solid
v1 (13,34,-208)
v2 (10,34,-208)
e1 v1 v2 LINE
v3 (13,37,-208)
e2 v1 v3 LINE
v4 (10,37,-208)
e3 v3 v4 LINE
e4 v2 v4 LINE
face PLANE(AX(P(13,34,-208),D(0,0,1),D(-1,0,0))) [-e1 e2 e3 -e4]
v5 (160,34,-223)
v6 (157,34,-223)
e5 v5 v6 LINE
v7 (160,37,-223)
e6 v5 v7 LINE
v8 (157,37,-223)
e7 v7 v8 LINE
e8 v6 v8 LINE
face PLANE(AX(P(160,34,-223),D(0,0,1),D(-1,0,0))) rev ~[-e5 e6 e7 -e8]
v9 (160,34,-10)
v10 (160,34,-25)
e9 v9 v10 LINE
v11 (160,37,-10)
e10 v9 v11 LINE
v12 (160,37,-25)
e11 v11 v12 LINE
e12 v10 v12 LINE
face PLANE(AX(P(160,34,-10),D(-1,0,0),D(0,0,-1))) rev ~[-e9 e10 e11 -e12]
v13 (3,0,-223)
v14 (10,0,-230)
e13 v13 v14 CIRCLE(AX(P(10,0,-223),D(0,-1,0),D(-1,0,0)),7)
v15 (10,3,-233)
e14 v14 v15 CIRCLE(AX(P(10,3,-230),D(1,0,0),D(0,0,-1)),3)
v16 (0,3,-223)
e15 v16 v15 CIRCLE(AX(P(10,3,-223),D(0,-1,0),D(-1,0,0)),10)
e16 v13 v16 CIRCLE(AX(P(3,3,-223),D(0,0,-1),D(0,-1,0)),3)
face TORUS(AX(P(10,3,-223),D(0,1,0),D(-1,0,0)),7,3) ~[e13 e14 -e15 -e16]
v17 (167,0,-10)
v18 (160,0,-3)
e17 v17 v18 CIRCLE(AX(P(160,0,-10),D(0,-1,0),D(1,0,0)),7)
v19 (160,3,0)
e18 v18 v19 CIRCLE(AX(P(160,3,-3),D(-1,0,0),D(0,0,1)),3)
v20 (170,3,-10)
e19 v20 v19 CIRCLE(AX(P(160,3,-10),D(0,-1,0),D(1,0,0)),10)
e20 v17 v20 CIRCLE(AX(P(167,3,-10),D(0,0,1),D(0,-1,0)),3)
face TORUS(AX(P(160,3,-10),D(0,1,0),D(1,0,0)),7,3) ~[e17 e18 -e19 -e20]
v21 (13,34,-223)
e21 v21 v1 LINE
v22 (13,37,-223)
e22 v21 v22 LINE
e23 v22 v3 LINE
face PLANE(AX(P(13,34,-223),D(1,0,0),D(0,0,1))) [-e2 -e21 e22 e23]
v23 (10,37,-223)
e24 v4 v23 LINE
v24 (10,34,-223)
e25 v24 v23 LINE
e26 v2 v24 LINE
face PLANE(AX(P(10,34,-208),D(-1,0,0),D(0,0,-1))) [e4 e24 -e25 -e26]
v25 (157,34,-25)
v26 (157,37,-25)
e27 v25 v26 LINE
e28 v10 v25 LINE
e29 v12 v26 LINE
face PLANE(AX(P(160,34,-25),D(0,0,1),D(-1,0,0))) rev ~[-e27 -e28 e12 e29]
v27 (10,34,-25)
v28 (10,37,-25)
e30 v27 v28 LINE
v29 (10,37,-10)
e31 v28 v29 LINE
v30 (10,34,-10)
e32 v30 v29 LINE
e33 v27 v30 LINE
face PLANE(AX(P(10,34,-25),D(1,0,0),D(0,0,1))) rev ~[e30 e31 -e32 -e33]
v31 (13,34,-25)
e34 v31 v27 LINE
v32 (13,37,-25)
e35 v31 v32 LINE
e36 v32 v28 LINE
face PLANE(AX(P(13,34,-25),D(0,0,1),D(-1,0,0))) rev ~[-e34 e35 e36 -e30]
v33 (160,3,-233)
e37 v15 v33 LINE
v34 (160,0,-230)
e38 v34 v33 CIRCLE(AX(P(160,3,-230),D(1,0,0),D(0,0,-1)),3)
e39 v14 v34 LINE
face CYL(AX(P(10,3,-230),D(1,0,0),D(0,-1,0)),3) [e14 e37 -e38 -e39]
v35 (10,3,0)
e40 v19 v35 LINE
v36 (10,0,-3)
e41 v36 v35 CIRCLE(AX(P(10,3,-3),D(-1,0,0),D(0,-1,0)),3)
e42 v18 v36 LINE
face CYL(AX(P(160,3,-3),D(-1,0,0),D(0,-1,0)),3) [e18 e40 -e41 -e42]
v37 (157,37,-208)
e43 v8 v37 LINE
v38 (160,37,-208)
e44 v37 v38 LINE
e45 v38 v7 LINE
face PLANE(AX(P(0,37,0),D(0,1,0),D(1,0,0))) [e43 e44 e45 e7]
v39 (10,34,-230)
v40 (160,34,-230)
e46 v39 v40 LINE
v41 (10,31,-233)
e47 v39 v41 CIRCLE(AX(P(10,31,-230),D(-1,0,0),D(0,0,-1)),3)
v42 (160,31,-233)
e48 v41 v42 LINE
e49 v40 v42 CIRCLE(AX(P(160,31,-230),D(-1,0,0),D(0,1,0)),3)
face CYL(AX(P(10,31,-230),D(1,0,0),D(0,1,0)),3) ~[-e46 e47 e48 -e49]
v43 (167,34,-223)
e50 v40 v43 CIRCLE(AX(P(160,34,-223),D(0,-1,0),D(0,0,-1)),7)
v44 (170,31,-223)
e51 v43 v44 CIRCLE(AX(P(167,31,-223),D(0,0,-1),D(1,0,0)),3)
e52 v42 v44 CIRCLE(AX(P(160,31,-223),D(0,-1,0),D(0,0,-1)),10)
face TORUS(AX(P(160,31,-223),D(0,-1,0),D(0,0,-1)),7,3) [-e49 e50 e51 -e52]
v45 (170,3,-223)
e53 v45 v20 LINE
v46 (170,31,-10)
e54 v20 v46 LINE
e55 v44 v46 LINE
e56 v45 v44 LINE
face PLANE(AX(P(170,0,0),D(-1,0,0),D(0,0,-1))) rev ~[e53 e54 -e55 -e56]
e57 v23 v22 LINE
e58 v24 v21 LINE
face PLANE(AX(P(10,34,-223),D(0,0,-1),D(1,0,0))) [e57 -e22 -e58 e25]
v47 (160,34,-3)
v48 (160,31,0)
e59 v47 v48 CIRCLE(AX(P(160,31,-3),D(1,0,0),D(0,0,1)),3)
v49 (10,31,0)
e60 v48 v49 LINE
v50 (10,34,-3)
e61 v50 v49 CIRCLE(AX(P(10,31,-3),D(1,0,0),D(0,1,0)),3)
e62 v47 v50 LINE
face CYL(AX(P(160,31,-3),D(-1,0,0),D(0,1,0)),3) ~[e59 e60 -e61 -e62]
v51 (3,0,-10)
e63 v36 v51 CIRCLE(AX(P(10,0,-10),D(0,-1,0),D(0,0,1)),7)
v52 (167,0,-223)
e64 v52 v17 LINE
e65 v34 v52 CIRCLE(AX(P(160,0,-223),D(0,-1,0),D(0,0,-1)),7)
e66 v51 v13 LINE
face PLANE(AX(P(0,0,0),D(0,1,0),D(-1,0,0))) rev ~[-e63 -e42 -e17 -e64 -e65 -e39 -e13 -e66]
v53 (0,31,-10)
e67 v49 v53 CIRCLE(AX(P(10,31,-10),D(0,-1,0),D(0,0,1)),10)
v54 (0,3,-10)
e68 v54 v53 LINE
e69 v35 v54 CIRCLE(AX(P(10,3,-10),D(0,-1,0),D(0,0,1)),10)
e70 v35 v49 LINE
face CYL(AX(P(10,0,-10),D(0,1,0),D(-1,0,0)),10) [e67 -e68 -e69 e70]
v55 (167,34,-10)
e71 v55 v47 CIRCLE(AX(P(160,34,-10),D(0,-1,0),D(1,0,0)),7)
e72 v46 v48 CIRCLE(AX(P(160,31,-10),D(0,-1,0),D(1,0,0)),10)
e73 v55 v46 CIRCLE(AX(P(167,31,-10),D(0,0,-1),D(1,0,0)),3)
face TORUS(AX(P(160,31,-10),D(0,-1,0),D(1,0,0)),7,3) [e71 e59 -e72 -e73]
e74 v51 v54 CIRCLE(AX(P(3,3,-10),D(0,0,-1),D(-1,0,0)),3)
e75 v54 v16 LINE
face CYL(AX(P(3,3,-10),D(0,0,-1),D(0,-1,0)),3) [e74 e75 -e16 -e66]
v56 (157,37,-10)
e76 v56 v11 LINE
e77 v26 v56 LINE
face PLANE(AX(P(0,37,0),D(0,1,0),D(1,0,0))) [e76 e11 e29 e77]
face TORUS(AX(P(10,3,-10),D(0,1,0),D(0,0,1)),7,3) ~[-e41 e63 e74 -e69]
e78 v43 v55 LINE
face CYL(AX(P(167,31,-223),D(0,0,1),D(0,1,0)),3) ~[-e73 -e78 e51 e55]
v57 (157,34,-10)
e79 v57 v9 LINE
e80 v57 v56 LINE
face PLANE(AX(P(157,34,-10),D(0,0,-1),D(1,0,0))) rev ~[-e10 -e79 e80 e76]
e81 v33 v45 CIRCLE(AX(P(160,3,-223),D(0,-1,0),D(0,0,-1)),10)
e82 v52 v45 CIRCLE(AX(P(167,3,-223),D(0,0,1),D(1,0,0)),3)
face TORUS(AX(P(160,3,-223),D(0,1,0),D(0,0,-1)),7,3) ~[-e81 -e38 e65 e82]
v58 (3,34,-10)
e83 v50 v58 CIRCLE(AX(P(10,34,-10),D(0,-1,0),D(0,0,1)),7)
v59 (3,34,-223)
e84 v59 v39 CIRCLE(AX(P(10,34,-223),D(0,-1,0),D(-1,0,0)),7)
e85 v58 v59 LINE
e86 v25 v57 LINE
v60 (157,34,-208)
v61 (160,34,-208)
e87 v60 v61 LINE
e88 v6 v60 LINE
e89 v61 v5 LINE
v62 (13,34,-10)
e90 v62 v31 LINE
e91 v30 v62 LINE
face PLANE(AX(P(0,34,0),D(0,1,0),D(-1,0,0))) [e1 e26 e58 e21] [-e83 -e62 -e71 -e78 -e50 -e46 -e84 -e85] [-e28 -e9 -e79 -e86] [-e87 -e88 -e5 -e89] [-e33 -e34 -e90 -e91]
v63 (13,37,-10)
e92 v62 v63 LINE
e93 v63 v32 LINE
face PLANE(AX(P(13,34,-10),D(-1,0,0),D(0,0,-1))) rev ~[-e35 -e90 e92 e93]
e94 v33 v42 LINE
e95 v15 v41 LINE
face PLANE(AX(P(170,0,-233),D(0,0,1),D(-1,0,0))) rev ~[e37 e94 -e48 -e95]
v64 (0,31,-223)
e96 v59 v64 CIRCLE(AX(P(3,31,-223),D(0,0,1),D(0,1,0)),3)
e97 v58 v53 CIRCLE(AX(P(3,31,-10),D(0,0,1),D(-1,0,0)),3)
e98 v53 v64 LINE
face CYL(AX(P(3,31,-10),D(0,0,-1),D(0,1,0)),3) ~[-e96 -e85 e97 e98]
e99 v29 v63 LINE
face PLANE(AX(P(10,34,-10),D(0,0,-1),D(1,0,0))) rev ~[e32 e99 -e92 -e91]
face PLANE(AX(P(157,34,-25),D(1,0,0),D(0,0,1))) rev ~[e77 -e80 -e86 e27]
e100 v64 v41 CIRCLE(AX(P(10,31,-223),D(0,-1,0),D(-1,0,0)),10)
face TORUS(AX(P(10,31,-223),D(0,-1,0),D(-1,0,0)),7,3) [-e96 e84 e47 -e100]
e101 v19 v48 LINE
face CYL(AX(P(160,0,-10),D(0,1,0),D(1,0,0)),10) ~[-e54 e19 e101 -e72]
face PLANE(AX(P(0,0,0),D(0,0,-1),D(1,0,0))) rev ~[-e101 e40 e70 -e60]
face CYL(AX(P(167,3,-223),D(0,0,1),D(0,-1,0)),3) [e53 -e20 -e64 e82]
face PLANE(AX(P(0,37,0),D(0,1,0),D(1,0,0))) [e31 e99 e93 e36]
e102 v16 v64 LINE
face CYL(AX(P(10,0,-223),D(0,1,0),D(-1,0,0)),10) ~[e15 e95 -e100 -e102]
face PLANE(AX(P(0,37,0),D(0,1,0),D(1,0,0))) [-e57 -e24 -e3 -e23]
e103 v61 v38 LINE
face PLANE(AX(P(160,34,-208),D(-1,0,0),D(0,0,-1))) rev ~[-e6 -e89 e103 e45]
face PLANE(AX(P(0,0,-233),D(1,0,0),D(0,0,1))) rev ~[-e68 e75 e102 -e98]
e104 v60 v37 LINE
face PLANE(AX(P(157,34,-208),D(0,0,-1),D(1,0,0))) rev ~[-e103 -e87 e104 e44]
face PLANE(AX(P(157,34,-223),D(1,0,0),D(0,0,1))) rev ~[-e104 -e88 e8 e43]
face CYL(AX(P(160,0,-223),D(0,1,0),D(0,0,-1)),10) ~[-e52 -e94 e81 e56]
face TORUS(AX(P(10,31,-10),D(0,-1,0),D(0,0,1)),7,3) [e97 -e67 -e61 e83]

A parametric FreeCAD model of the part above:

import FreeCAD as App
import Part
import Sketcher
from FreeCAD import Vector
Q = App.Units.Quantity


def edges_at(feature, points):
    """Names of the edges that pass closest to the given points."""
    edges = feature.Shape.Edges
    near = lambda p: min(range(len(edges)), key=lambda i: edges[i].distToShape(Part.Vertex(*p))[0])
    return sorted({f"Edge{near(p) + 1}" for p in points})

doc = App.newDocument("Part")
body = doc.addObject("PartDesign::Body", "Body")

sketch1 = doc.addObject("Sketcher::SketchObject", "Sketch")
body.addObject(sketch1)
sketch1.AttachmentSupport = (doc.XZ_Plane, [""])
sketch1.MapMode = "FlatFace"
sketch1.addGeometry(Part.LineSegment(Vector(0, -233, 0), Vector(0, 0, 0)), False)
sketch1.addGeometry(Part.LineSegment(Vector(0, 0, 0), Vector(170, 0, 0)), False)
sketch1.addGeometry(Part.LineSegment(Vector(170, 0, 0), Vector(170, -233, 0)), False)
sketch1.addGeometry(Part.LineSegment(Vector(170, -233, 0), Vector(0, -233, 0)), False)
sketch1.addConstraint(Sketcher.Constraint("Coincident", 0, 2, 1, 1))
sketch1.addConstraint(Sketcher.Constraint("Coincident", 1, 2, 2, 1))
sketch1.addConstraint(Sketcher.Constraint("Coincident", 2, 2, 3, 1))
sketch1.addConstraint(Sketcher.Constraint("Coincident", 3, 2, 0, 1))
sketch1.addConstraint(Sketcher.Constraint("Vertical", 0))
sketch1.addConstraint(Sketcher.Constraint("Horizontal", 1))
sketch1.addConstraint(Sketcher.Constraint("Vertical", 2))
sketch1.addConstraint(Sketcher.Constraint("Horizontal", 3))
sketch1.addConstraint(Sketcher.Constraint("Coincident", 0, 2, -1, 1))
sketch1.addConstraint(Sketcher.Constraint("DistanceX", 1, 1, 1, 2, Q("170 mm")))
sketch1.addConstraint(Sketcher.Constraint("DistanceY", 0, 1, 0, 2, Q("233 mm")))
pad1 = doc.addObject("PartDesign::Pad", "Pad")
body.addObject(pad1)
pad1.Profile = sketch1
pad1.Length = 34
pad1.Reversed = True
doc.recompute()

fillet = doc.addObject("PartDesign::Fillet", "Fillet")
body.addObject(fillet)
fillet.Base = (pad1, edges_at(pad1, [
    (170, 17, 0),
    (0, 17, 0),
    (170, 17, -233),
    (0, 17, -233),
]))
fillet.Radius = 10
doc.recompute()

fillet2 = doc.addObject("PartDesign::Fillet", "Fillet001")
body.addObject(fillet2)
fillet2.Base = (fillet, edges_at(fillet, [
    (167.071, 34, -2.929),
    (170, 34, -116.5),
    (167.071, 34, -230.071),
    (85, 34, -233),
    (2.929, 34, -230.071),
    (0, 34, -116.5),
    (2.929, 34, -2.929),
    (85, 34, 0),
    (167.071, 0, -230.071),
    (85, 0, -233),
    (2.929, 0, -230.071),
    (0, 0, -116.5),
    (2.929, 0, -2.929),
    (85, 0, 0),
    (167.071, 0, -2.929),
    (170, 0, -116.5),
]))
fillet2.Radius = 3

sketch2 = doc.addObject("Sketcher::SketchObject", "Sketch001")
body.addObject(sketch2)
sketch2.AttachmentSupport = (doc.XZ_Plane, [""])
sketch2.MapMode = "FlatFace"
sketch2.AttachmentOffset = App.Placement(Vector(0, 0, -34), App.Rotation())
sketch2.addGeometry(Part.LineSegment(Vector(10, -25, 0), Vector(10, -10, 0)), False)
sketch2.addGeometry(Part.LineSegment(Vector(10, -10, 0), Vector(13, -10, 0)), False)
sketch2.addGeometry(Part.LineSegment(Vector(13, -10, 0), Vector(13, -25, 0)), False)
sketch2.addGeometry(Part.LineSegment(Vector(13, -25, 0), Vector(10, -25, 0)), False)
sketch2.addGeometry(Part.LineSegment(Vector(157, -25, 0), Vector(157, -10, 0)), False)
sketch2.addGeometry(Part.LineSegment(Vector(157, -10, 0), Vector(160, -10, 0)), False)
sketch2.addGeometry(Part.LineSegment(Vector(160, -10, 0), Vector(160, -25, 0)), False)
sketch2.addGeometry(Part.LineSegment(Vector(160, -25, 0), Vector(157, -25, 0)), False)
sketch2.addGeometry(Part.LineSegment(Vector(160, -208, 0), Vector(160, -223, 0)), False)
sketch2.addGeometry(Part.LineSegment(Vector(160, -223, 0), Vector(157, -223, 0)), False)
sketch2.addGeometry(Part.LineSegment(Vector(157, -223, 0), Vector(157, -208, 0)), False)
sketch2.addGeometry(Part.LineSegment(Vector(157, -208, 0), Vector(160, -208, 0)), False)
sketch2.addGeometry(Part.LineSegment(Vector(13, -223, 0), Vector(10, -223, 0)), False)
sketch2.addGeometry(Part.LineSegment(Vector(10, -223, 0), Vector(10, -208, 0)), False)
sketch2.addGeometry(Part.LineSegment(Vector(10, -208, 0), Vector(13, -208, 0)), False)
sketch2.addGeometry(Part.LineSegment(Vector(13, -208, 0), Vector(13, -223, 0)), False)
sketch2.addConstraint(Sketcher.Constraint("Coincident", 0, 2, 1, 1))
sketch2.addConstraint(Sketcher.Constraint("Coincident", 1, 2, 2, 1))
sketch2.addConstraint(Sketcher.Constraint("Coincident", 2, 2, 3, 1))
sketch2.addConstraint(Sketcher.Constraint("Coincident", 3, 2, 0, 1))
sketch2.addConstraint(Sketcher.Constraint("Coincident", 4, 2, 5, 1))
sketch2.addConstraint(Sketcher.Constraint("Coincident", 5, 2, 6, 1))
sketch2.addConstraint(Sketcher.Constraint("Coincident", 6, 2, 7, 1))
sketch2.addConstraint(Sketcher.Constraint("Coincident", 7, 2, 4, 1))
sketch2.addConstraint(Sketcher.Constraint("Coincident", 8, 2, 9, 1))
sketch2.addConstraint(Sketcher.Constraint("Coincident", 9, 2, 10, 1))
sketch2.addConstraint(Sketcher.Constraint("Coincident", 10, 2, 11, 1))
sketch2.addConstraint(Sketcher.Constraint("Coincident", 11, 2, 8, 1))
sketch2.addConstraint(Sketcher.Constraint("Coincident", 12, 2, 13, 1))
sketch2.addConstraint(Sketcher.Constraint("Coincident", 13, 2, 14, 1))
sketch2.addConstraint(Sketcher.Constraint("Coincident", 14, 2, 15, 1))
sketch2.addConstraint(Sketcher.Constraint("Coincident", 15, 2, 12, 1))
sketch2.addConstraint(Sketcher.Constraint("Vertical", 0))
sketch2.addConstraint(Sketcher.Constraint("Horizontal", 1))
sketch2.addConstraint(Sketcher.Constraint("Vertical", 2))
sketch2.addConstraint(Sketcher.Constraint("Horizontal", 3))
sketch2.addConstraint(Sketcher.Constraint("Vertical", 4))
sketch2.addConstraint(Sketcher.Constraint("Horizontal", 5))
sketch2.addConstraint(Sketcher.Constraint("Vertical", 6))
sketch2.addConstraint(Sketcher.Constraint("Horizontal", 7))
sketch2.addConstraint(Sketcher.Constraint("Vertical", 8))
sketch2.addConstraint(Sketcher.Constraint("Horizontal", 9))
sketch2.addConstraint(Sketcher.Constraint("Vertical", 10))
sketch2.addConstraint(Sketcher.Constraint("Horizontal", 11))
sketch2.addConstraint(Sketcher.Constraint("Horizontal", 12))
sketch2.addConstraint(Sketcher.Constraint("Vertical", 13))
sketch2.addConstraint(Sketcher.Constraint("Horizontal", 14))
sketch2.addConstraint(Sketcher.Constraint("Vertical", 15))
sketch2.addConstraint(Sketcher.Constraint("Horizontal", 1, 2, 4, 2))
sketch2.addConstraint(Sketcher.Constraint("Horizontal", 3, 2, 6, 2))
sketch2.addConstraint(Sketcher.Constraint("Horizontal", 9, 2, 12, 2))
sketch2.addConstraint(Sketcher.Constraint("Horizontal", 11, 2, 13, 2))
sketch2.addConstraint(Sketcher.Constraint("Vertical", 6, 2, 8, 2))
sketch2.addConstraint(Sketcher.Constraint("Vertical", 7, 2, 9, 2))
sketch2.addConstraint(Sketcher.Constraint("Vertical", 3, 2, 12, 2))
sketch2.addConstraint(Sketcher.Constraint("Vertical", 2, 2, 14, 2))
sketch2.addConstraint(Sketcher.Constraint("Equal", 3, 5))
sketch2.addConstraint(Sketcher.Constraint("Equal", 6, 8))
sketch2.addConstraint(Sketcher.Constraint("DistanceX", 1, 1, 1, 2, Q("3 mm")))
sketch2.addConstraint(Sketcher.Constraint("DistanceY", 0, 1, 0, 2, Q("15 mm")))
sketch2.addConstraint(Sketcher.Constraint("DistanceX", -1, 1, 0, 2, Q("10 mm")))
sketch2.addConstraint(Sketcher.Constraint("DistanceY", 0, 2, -1, 1, Q("10 mm")))
sketch2.addConstraint(Sketcher.Constraint("DistanceX", -1, 1, 4, 2, Q("157 mm")))
sketch2.addConstraint(Sketcher.Constraint("DistanceY", 8, 2, -1, 1, Q("223 mm")))
pad2 = doc.addObject("PartDesign::Pad", "Pad001")
body.addObject(pad2)
pad2.Profile = sketch2
pad2.Length = 3
pad2.Reversed = True

doc.recompute()
